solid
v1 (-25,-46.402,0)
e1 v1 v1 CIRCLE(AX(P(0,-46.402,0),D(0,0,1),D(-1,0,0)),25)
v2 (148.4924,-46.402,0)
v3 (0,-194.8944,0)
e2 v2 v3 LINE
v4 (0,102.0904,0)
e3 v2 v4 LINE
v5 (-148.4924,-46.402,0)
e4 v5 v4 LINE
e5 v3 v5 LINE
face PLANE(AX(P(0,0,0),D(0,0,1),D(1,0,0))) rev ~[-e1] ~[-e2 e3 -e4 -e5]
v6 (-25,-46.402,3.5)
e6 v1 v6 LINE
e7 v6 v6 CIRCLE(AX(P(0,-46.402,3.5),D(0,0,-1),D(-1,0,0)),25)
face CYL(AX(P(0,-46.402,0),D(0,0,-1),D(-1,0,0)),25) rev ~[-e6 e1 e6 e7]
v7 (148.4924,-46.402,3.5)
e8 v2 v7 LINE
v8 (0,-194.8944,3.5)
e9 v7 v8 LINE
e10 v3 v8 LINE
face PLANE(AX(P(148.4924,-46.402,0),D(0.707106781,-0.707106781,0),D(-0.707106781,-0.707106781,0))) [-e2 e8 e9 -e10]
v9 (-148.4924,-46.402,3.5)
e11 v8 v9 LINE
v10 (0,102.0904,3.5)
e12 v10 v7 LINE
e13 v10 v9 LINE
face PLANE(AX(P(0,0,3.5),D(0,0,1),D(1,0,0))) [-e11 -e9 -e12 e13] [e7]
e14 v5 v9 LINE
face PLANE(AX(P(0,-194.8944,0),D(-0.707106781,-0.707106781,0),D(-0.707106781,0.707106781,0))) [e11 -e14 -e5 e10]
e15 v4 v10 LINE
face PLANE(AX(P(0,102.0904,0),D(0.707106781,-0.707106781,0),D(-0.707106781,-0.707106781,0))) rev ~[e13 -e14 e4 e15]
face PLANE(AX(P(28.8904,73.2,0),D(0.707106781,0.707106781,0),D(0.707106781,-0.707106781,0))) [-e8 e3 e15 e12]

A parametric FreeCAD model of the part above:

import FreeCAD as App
import Part
import Sketcher
Q = App.Units.Quantity


def add_polygon(sketch, points):
    """Adds a closed chain of lines whose ends are joined by coincident constraints."""
    first, n = sketch.GeometryCount, len(points)
    for a, b in zip(points, points[1:] + points[:1]):
        sketch.addGeometry(Part.LineSegment(App.Vector(*a, 0), App.Vector(*b, 0)), False)
    for i in range(n):
        sketch.addConstraint(Sketcher.Constraint("Coincident", first + i, 2, first + (i + 1) % n, 1))

doc = App.newDocument("Part")
body = doc.addObject("PartDesign::Body", "Body")

# Sketch on XY plane
sketch1 = body.newObject("Sketcher::SketchObject", "Sketch")
sketch1.AttachmentSupport = (doc.getObject("XY_Plane"), [""])
sketch1.MapMode = "FlatFace"
add_polygon(sketch1, [(148.4924, -46.402), (0, 102.0904), (-148.4924, -46.402), (0, -194.8944)])  # lines 0-3
sketch1.addConstraint(Sketcher.Constraint("Symmetric", 1, 2, 3, 2, -2))
sketch1.addConstraint(Sketcher.Constraint("PointOnObject", 0, 2, -2))
sketch1.addConstraint(Sketcher.Constraint("PointOnObject", 2, 2, -2))
sketch1.addConstraint(Sketcher.Constraint("Perpendicular", 0, 1))
sketch1.addConstraint(Sketcher.Constraint("Perpendicular", 1, 2))
sketch1.addConstraint(Sketcher.Constraint("Distance", 0, Q("210 mm")))
sketch1.addConstraint(Sketcher.Constraint("DistanceY", 1, 2, -1, 1, Q("46.402 mm")))
pad1 = body.newObject("PartDesign::Pad", "Pad")
pad1.Profile = sketch1
pad1.Length = 3.5

# Sketch on XY plane
sketch2 = body.newObject("Sketcher::SketchObject", "Sketch001")
sketch2.AttachmentSupport = (doc.getObject("XY_Plane"), [""])
sketch2.MapMode = "FlatFace"
sketch2.addGeometry(Part.Circle(App.Vector(0, -46.402, 0), App.Vector(0, 0, 1), 25), False)
sketch2.addConstraint(Sketcher.Constraint("PointOnObject", 0, 3, -2))
sketch2.addConstraint(Sketcher.Constraint("Diameter", 0, Q("50 mm")))
sketch2.addConstraint(Sketcher.Constraint("DistanceY", 0, 3, -1, 1, Q("46.402 mm")))
pocket1 = body.newObject("PartDesign::Pocket", "Pocket")
pocket1.Profile = sketch2
pocket1.Length = 50
pocket1.Reversed = True

doc.recompute()
